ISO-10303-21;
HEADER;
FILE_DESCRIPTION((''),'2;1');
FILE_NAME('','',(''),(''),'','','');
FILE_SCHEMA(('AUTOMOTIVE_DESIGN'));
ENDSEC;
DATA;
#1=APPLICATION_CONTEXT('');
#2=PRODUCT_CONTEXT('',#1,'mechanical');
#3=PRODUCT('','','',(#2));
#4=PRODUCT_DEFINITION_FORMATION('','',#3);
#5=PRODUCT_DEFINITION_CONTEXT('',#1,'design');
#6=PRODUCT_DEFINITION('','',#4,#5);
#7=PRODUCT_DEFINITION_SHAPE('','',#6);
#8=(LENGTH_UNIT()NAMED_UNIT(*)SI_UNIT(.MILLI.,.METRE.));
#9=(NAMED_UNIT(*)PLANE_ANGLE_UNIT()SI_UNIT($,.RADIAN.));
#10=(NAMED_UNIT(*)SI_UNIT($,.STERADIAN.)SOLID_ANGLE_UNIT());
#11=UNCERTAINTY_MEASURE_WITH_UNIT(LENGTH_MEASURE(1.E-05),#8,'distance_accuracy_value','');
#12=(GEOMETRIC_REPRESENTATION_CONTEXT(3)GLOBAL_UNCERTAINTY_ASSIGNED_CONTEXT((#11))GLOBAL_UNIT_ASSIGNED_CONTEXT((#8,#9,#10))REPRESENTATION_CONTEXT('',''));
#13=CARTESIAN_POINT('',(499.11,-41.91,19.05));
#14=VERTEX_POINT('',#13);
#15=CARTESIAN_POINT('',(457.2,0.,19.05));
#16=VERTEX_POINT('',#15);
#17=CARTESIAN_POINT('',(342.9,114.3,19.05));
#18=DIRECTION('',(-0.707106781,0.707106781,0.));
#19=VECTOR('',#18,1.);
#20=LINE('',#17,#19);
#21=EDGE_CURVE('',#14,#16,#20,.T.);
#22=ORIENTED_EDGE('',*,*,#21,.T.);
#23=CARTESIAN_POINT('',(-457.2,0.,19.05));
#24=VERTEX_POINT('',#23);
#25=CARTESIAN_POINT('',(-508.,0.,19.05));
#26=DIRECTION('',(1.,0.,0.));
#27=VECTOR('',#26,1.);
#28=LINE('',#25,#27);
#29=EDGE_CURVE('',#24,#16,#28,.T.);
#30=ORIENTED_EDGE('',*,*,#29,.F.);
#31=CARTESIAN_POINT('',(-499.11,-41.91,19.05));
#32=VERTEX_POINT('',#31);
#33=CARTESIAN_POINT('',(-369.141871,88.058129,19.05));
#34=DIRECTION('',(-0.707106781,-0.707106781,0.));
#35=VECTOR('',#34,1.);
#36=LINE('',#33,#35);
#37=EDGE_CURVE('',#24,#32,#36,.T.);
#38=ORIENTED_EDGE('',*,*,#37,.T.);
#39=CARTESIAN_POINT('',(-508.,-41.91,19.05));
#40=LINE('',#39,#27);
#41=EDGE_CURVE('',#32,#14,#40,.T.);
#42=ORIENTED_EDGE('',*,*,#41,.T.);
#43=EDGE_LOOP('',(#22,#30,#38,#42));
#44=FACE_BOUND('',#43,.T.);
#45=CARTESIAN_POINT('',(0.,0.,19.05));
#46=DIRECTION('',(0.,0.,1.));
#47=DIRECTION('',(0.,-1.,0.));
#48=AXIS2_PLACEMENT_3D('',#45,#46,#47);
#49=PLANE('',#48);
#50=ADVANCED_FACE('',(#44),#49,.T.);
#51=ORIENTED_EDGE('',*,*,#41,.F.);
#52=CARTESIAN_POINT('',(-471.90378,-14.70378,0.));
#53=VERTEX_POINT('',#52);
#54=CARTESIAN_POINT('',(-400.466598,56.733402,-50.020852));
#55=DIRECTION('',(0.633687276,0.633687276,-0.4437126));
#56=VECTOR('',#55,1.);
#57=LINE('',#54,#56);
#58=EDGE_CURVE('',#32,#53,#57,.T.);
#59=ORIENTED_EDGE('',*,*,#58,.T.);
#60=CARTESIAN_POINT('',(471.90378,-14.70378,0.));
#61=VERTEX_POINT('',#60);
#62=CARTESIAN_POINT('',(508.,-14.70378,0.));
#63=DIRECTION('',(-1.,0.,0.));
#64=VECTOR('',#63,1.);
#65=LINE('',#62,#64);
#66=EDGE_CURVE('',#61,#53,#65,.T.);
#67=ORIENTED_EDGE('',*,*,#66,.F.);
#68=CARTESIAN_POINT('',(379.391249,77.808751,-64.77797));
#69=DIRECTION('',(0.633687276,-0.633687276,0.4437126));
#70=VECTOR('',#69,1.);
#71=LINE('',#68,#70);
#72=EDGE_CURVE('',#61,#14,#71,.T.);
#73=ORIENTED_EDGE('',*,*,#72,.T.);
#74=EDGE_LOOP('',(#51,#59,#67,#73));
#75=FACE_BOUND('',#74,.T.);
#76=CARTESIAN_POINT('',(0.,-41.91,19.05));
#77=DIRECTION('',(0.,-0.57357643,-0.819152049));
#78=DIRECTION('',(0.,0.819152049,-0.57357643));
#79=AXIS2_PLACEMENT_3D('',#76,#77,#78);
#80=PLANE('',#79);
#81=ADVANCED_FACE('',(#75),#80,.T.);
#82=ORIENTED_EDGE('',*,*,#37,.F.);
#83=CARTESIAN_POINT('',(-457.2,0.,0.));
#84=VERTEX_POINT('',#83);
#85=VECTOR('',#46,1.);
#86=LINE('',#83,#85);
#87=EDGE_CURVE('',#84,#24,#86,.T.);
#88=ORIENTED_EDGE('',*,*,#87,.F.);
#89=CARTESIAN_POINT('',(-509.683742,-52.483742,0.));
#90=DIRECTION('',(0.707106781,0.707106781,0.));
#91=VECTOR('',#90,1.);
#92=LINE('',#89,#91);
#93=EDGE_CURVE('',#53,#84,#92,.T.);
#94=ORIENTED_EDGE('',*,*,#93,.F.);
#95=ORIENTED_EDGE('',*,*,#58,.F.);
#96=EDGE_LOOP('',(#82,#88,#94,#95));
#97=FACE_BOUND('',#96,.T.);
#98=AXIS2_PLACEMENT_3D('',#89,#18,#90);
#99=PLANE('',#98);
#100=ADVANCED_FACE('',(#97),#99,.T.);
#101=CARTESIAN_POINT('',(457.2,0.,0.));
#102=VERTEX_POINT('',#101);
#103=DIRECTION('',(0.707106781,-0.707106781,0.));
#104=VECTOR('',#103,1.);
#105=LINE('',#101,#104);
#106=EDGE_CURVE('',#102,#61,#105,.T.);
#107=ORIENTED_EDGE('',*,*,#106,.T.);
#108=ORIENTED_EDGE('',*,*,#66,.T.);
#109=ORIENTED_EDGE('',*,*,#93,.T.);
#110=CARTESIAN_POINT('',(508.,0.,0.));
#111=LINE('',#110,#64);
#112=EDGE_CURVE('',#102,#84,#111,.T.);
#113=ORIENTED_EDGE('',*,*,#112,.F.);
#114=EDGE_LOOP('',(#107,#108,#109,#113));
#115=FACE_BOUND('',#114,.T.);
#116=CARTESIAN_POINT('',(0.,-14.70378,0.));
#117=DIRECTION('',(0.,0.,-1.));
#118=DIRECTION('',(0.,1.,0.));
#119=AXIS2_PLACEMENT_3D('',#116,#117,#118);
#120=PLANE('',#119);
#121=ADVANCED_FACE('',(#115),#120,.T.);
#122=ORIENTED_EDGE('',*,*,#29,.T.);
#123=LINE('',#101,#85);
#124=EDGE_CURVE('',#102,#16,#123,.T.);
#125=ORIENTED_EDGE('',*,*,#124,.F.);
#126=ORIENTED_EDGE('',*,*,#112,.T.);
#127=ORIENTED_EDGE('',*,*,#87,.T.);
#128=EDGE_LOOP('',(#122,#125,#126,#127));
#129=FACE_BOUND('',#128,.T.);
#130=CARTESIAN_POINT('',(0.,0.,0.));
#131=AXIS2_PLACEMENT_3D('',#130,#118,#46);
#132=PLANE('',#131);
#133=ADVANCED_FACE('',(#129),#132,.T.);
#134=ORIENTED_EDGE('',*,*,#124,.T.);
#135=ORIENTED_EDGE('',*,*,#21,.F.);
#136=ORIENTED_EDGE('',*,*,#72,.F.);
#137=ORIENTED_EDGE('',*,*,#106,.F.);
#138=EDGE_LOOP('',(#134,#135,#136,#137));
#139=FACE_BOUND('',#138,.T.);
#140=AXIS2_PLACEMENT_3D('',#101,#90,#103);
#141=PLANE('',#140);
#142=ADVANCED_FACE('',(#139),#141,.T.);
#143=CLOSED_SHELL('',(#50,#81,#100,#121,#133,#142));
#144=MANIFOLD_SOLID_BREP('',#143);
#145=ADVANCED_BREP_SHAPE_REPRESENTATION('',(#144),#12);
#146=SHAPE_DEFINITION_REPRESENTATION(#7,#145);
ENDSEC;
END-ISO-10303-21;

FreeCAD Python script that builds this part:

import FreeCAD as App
import Part
import Sketcher

V = App.Vector
Q = App.Units.Quantity

doc = App.newDocument("Part")
params = doc.addObject("Spreadsheet::Sheet", "Params")
for row, (alias, value) in enumerate([
    ("sketch1_width", "1.65 in"),
    ("sketch1_height", "0.75 in"),
    ("pad1_length", "20 in"),
    ("pad1_length2", "20 in"),
], start=1):
    params.set(f"A{row}", alias)
    params.set(f"B{row}", "=" + value)
    params.setAlias(f"B{row}", alias)

body = doc.addObject("PartDesign::Body", "Body")

sketch1 = body.newObject("Sketcher::SketchObject", "Sketch")
sketch1.AttachmentSupport = (doc.getObject("YZ_Plane"), [""])
sketch1.MapMode = "FlatFace"
sketch1.addGeometry(Part.LineSegment(V(0, 0, 0), V(0, 19, 0)), False)
sketch1.addGeometry(Part.LineSegment(V(0, 19, 0), V(-42, 19, 0)), False)
sketch1.addGeometry(Part.LineSegment(V(-42, 19, 0), V(-15, 0, 0)), False)
sketch1.addGeometry(Part.LineSegment(V(-15, 0, 0), V(0, 0, 0)), False)
sketch1.addConstraint(Sketcher.Constraint("Coincident", 0, 2, 1, 1))
sketch1.addConstraint(Sketcher.Constraint("Coincident", 1, 2, 2, 1))
sketch1.addConstraint(Sketcher.Constraint("Coincident", 2, 2, 3, 1))
sketch1.addConstraint(Sketcher.Constraint("Coincident", 3, 2, 0, 1))
sketch1.addConstraint(Sketcher.Constraint("Vertical", 0))
sketch1.addConstraint(Sketcher.Constraint("Horizontal", 1))
sketch1.addConstraint(Sketcher.Constraint("Horizontal", 3))
sketch1.addConstraint(Sketcher.Constraint("Coincident", 3, 2, -1, 1))
sketch1.addConstraint(Sketcher.Constraint("Angle", 2, Q("-35 deg")))
sketch1.addConstraint(Sketcher.Constraint("DistanceX", 1, 2, 1, 1, Q("1.65 in")))
sketch1.addConstraint(Sketcher.Constraint("DistanceY", 0, 1, 0, 2, Q("0.75 in")))
sketch1.setExpression("Constraints[9]", "Params.sketch1_width")
sketch1.setExpression("Constraints[10]", "Params.sketch1_height")
pad1 = body.newObject("PartDesign::Pad", "Pad")
pad1.Profile = sketch1
pad1.Type = "TwoLengths"
pad1.setExpression("Length", "Params.pad1_length")
pad1.setExpression("Length2", "Params.pad1_length2")

sketch2 = body.newObject("Sketcher::SketchObject", "Sketch001")
sketch2.AttachmentSupport = (doc.getObject("XY_Plane"), [""])
sketch2.MapMode = "FlatFace"
sketch2.addGeometry(Part.LineSegment(V(510, 0, 0), V(457, 0, 0)), False)
sketch2.addGeometry(Part.LineSegment(V(457, 0, 0), V(510, -52, 0)), False)
sketch2.addGeometry(Part.LineSegment(V(510, -52, 0), V(510, 0, 0)), False)
sketch2.addGeometry(Part.LineSegment(V(-510, -52, 0), V(-457, 0, 0)), False)
sketch2.addGeometry(Part.LineSegment(V(-457, 0, 0), V(-510, 0, 0)), False)
sketch2.addGeometry(Part.LineSegment(V(-510, 0, 0), V(-510, -52, 0)), False)
sketch2.addConstraint(Sketcher.Constraint("Coincident", 0, 2, 1, 1))
sketch2.addConstraint(Sketcher.Constraint("Coincident", 1, 2, 2, 1))
sketch2.addConstraint(Sketcher.Constraint("Coincident", 2, 2, 0, 1))
sketch2.addConstraint(Sketcher.Constraint("Coincident", 3, 2, 4, 1))
sketch2.addConstraint(Sketcher.Constraint("Coincident", 4, 2, 5, 1))
sketch2.addConstraint(Sketcher.Constraint("Coincident", 5, 2, 3, 1))
sketch2.addConstraint(Sketcher.Constraint("Horizontal", 0))
sketch2.addConstraint(Sketcher.Constraint("Vertical", 2))
sketch2.addConstraint(Sketcher.Constraint("Horizontal", 4))
sketch2.addConstraint(Sketcher.Constraint("Vertical", 5))
sketch2.addConstraint(Sketcher.Constraint("Symmetric", 0, 2, 3, 2, -1, 1))
sketch2.addConstraint(Sketcher.Constraint("Symmetric", 2, 2, 4, 2, -2))
sketch2.addConstraint(Sketcher.Constraint("Perpendicular", 1, 3))
sketch2.addConstraint(Sketcher.Constraint("Horizontal", 1, 2, 5, 2))
sketch2.addConstraint(Sketcher.Constraint("DistanceX", -1, 1, 0, 2, Q("18 in")))
sketch2.addConstraint(Sketcher.Constraint("Distance", 1, Q("74.22322 mm")))
pocket1 = body.newObject("PartDesign::Pocket", "Pocket")
pocket1.Profile = sketch2
pocket1.Type = "ThroughAll"
pocket1.Reversed = True

doc.recompute()
